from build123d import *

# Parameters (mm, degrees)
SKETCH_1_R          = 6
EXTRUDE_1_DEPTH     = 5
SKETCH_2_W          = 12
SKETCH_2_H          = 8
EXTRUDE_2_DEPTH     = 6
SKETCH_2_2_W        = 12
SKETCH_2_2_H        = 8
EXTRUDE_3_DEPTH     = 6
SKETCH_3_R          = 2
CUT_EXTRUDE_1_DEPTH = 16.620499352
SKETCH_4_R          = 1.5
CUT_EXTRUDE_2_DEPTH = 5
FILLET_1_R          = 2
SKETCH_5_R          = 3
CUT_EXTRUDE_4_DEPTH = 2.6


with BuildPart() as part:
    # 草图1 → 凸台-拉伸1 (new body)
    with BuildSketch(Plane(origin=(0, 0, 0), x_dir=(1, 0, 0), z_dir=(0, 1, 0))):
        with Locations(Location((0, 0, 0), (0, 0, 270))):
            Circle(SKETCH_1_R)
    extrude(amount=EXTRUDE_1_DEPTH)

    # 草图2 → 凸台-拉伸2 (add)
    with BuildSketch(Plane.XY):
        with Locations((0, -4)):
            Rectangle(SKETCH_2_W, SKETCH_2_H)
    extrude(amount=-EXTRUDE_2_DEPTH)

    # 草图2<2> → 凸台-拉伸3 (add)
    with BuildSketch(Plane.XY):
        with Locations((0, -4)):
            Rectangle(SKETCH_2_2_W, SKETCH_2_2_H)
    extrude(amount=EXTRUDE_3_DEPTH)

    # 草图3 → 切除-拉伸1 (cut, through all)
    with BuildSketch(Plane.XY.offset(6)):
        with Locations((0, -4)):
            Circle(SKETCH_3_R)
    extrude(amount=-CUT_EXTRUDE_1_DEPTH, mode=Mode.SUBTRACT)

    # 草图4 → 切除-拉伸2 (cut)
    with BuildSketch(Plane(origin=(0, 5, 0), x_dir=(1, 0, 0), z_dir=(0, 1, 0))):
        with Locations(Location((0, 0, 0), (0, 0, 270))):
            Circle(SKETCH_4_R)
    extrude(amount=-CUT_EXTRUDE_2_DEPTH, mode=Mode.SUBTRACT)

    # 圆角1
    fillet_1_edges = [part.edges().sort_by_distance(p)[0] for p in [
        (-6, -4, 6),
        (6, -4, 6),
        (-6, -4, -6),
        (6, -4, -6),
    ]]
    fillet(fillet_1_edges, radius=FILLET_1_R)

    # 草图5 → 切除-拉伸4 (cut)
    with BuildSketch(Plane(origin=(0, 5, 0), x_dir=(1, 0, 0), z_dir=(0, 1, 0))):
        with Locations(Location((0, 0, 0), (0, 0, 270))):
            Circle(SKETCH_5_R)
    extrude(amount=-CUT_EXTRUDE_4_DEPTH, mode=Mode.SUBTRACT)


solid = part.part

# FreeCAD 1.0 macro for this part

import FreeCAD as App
import Part
import Sketcher
from FreeCAD import Vector
Q = App.Units.Quantity


def edges_at(feature, points):
    """Names of the edges that pass closest to the given points."""
    edges = feature.Shape.Edges
    near = lambda p: min(range(len(edges)), key=lambda i: edges[i].distToShape(Part.Vertex(*p))[0])
    return sorted({f"Edge{near(p) + 1}" for p in points})


def add_polygon(sketch, points):
    """Adds a closed chain of lines whose ends are joined by coincident constraints."""
    first, n = sketch.GeometryCount, len(points)
    for a, b in zip(points, points[1:] + points[:1]):
        sketch.addGeometry(Part.LineSegment(App.Vector(*a, 0), App.Vector(*b, 0)), False)
    for i in range(n):
        sketch.addConstraint(Sketcher.Constraint("Coincident", first + i, 2, first + (i + 1) % n, 1))

doc = App.newDocument("Part")
params = doc.addObject("Spreadsheet::Sheet", "Params")
for row, (alias, value) in enumerate([
    ("sketch1_diameter", "12 mm"),
    ("pad1_length", "5 mm"),
    ("sketch2_width", "12 mm"),
    ("sketch2_height", "8 mm"),
    ("pad2_length", "6 mm"),
    ("sketch3_width", "12 mm"),
    ("sketch3_height", "8 mm"),
    ("pad3_length", "6 mm"),
    ("sketch4_diameter", "4 mm"),
    ("sketch5_diameter", "3 mm"),
    ("pocket2_length", "5 mm"),
    ("fillet_radius", "2 mm"),
    ("sketch6_diameter", "6 mm"),
    ("pocket3_length", "2.6 mm"),
], start=1):
    params.set(f"A{row}", alias)
    params.set(f"B{row}", "=" + value)
    params.setAlias(f"B{row}", alias)

body = doc.addObject("PartDesign::Body", "Body")

sketch1 = body.newObject("Sketcher::SketchObject", "Sketch")
sketch1.AttachmentSupport = (doc.getObject("XZ_Plane"), [""])
sketch1.MapMode = "FlatFace"
sketch1.addGeometry(Part.Circle(Vector(0, 0, 0), Vector(0, 0, 1), 6), False)
sketch1.addConstraint([
    Sketcher.Constraint("Coincident", 0, 3, -1, 1),
    Sketcher.Constraint("Diameter", 0, Q("12 mm")),
])
sketch1.setExpression("Constraints[1]", "Params.sketch1_diameter")
pad1 = body.newObject("PartDesign::Pad", "Pad")
pad1.Profile = sketch1
pad1.setExpression("Length", "Params.pad1_length")
pad1.Reversed = True

sketch2 = body.newObject("Sketcher::SketchObject", "Sketch001")
sketch2.AttachmentSupport = (doc.getObject("XY_Plane"), [""])
sketch2.MapMode = "FlatFace"
add_polygon(sketch2, [(-6, 0), (-6, -8), (6, -8), (6, 0)])
sketch2.addConstraint([
    Sketcher.Constraint("Vertical", 0),
    Sketcher.Constraint("Horizontal", 1),
    Sketcher.Constraint("Vertical", 2),
    Sketcher.Constraint("Horizontal", 3),
    Sketcher.Constraint("Symmetric", 2, 2, 3, 2, -1, 1),
    Sketcher.Constraint("DistanceX", 1, 1, 1, 2, Q("12 mm")),
    Sketcher.Constraint("DistanceY", 0, 2, 0, 1, Q("8 mm")),
])
sketch2.setExpression("Constraints[9]", "Params.sketch2_width")
sketch2.setExpression("Constraints[10]", "Params.sketch2_height")
pad2 = body.newObject("PartDesign::Pad", "Pad001")
pad2.Profile = sketch2
pad2.setExpression("Length", "Params.pad2_length")
pad2.Reversed = True

sketch3 = body.newObject("Sketcher::SketchObject", "Sketch002")
sketch3.AttachmentSupport = (doc.getObject("XY_Plane"), [""])
sketch3.MapMode = "FlatFace"
add_polygon(sketch3, [(-6, 0), (-6, -8), (6, -8), (6, 0)])
sketch3.addConstraint([
    Sketcher.Constraint("Vertical", 0),
    Sketcher.Constraint("Horizontal", 1),
    Sketcher.Constraint("Vertical", 2),
    Sketcher.Constraint("Horizontal", 3),
    Sketcher.Constraint("Symmetric", 2, 2, 3, 2, -1, 1),
    Sketcher.Constraint("DistanceX", 1, 1, 1, 2, Q("12 mm")),
    Sketcher.Constraint("DistanceY", 0, 2, 0, 1, Q("8 mm")),
])
sketch3.setExpression("Constraints[9]", "Params.sketch3_width")
sketch3.setExpression("Constraints[10]", "Params.sketch3_height")
pad3 = body.newObject("PartDesign::Pad", "Pad002")
pad3.Profile = sketch3
pad3.setExpression("Length", "Params.pad3_length")

sketch4 = body.newObject("Sketcher::SketchObject", "Sketch003")
sketch4.AttachmentSupport = (doc.getObject("XY_Plane"), [""])
sketch4.MapMode = "FlatFace"
sketch4.AttachmentOffset = App.Placement(Vector(0, 0, 6), App.Rotation())
sketch4.addGeometry(Part.Circle(Vector(0, -4, 0), Vector(0, 0, 1), 2), False)
sketch4.addConstraint([
    Sketcher.Constraint("PointOnObject", 0, 3, -2),
    Sketcher.Constraint("Diameter", 0, Q("4 mm")),
    Sketcher.Constraint("DistanceY", 0, 3, -1, 1, Q("4 mm")),
])
sketch4.setExpression("Constraints[1]", "Params.sketch4_diameter")
pocket1 = body.newObject("PartDesign::Pocket", "Pocket")
pocket1.Profile = sketch4
pocket1.Type = "ThroughAll"

sketch5 = body.newObject("Sketcher::SketchObject", "Sketch004")
sketch5.AttachmentSupport = (doc.getObject("XZ_Plane"), [""])
sketch5.MapMode = "FlatFace"
sketch5.AttachmentOffset = App.Placement(Vector(0, 0, -5), App.Rotation())
sketch5.addGeometry(Part.Circle(Vector(0, 0, 0), Vector(0, 0, 1), 1.5), False)
sketch5.addConstraint([
    Sketcher.Constraint("Coincident", 0, 3, -1, 1),
    Sketcher.Constraint("Diameter", 0, Q("3 mm")),
])
sketch5.setExpression("Constraints[1]", "Params.sketch5_diameter")
pocket2 = body.newObject("PartDesign::Pocket", "Pocket001")
pocket2.Profile = sketch5
pocket2.setExpression("Length", "Params.pocket2_length")
pocket2.Reversed = True
doc.recompute()

fillet = body.newObject("PartDesign::Fillet", "Fillet")
fillet.Base = (pocket2, edges_at(pocket2, [
    (-6, -4, 6),
    (6, -4, 6),
    (-6, -4, -6),
    (6, -4, -6),
]))
fillet.setExpression("Radius", "Params.fillet_radius")

sketch6 = body.newObject("Sketcher::SketchObject", "Sketch005")
sketch6.AttachmentSupport = (doc.getObject("XZ_Plane"), [""])
sketch6.MapMode = "FlatFace"
sketch6.AttachmentOffset = App.Placement(Vector(0, 0, -5), App.Rotation())
sketch6.addGeometry(Part.Circle(Vector(0, 0, 0), Vector(0, 0, 1), 3), False)
sketch6.addConstraint([
    Sketcher.Constraint("Coincident", 0, 3, -1, 1),
    Sketcher.Constraint("Diameter", 0, Q("6 mm")),
])
sketch6.setExpression("Constraints[1]", "Params.sketch6_diameter")
pocket3 = body.newObject("PartDesign::Pocket", "Pocket002")
pocket3.Profile = sketch6
pocket3.setExpression("Length", "Params.pocket3_length")
pocket3.Reversed = True

doc.recompute()
